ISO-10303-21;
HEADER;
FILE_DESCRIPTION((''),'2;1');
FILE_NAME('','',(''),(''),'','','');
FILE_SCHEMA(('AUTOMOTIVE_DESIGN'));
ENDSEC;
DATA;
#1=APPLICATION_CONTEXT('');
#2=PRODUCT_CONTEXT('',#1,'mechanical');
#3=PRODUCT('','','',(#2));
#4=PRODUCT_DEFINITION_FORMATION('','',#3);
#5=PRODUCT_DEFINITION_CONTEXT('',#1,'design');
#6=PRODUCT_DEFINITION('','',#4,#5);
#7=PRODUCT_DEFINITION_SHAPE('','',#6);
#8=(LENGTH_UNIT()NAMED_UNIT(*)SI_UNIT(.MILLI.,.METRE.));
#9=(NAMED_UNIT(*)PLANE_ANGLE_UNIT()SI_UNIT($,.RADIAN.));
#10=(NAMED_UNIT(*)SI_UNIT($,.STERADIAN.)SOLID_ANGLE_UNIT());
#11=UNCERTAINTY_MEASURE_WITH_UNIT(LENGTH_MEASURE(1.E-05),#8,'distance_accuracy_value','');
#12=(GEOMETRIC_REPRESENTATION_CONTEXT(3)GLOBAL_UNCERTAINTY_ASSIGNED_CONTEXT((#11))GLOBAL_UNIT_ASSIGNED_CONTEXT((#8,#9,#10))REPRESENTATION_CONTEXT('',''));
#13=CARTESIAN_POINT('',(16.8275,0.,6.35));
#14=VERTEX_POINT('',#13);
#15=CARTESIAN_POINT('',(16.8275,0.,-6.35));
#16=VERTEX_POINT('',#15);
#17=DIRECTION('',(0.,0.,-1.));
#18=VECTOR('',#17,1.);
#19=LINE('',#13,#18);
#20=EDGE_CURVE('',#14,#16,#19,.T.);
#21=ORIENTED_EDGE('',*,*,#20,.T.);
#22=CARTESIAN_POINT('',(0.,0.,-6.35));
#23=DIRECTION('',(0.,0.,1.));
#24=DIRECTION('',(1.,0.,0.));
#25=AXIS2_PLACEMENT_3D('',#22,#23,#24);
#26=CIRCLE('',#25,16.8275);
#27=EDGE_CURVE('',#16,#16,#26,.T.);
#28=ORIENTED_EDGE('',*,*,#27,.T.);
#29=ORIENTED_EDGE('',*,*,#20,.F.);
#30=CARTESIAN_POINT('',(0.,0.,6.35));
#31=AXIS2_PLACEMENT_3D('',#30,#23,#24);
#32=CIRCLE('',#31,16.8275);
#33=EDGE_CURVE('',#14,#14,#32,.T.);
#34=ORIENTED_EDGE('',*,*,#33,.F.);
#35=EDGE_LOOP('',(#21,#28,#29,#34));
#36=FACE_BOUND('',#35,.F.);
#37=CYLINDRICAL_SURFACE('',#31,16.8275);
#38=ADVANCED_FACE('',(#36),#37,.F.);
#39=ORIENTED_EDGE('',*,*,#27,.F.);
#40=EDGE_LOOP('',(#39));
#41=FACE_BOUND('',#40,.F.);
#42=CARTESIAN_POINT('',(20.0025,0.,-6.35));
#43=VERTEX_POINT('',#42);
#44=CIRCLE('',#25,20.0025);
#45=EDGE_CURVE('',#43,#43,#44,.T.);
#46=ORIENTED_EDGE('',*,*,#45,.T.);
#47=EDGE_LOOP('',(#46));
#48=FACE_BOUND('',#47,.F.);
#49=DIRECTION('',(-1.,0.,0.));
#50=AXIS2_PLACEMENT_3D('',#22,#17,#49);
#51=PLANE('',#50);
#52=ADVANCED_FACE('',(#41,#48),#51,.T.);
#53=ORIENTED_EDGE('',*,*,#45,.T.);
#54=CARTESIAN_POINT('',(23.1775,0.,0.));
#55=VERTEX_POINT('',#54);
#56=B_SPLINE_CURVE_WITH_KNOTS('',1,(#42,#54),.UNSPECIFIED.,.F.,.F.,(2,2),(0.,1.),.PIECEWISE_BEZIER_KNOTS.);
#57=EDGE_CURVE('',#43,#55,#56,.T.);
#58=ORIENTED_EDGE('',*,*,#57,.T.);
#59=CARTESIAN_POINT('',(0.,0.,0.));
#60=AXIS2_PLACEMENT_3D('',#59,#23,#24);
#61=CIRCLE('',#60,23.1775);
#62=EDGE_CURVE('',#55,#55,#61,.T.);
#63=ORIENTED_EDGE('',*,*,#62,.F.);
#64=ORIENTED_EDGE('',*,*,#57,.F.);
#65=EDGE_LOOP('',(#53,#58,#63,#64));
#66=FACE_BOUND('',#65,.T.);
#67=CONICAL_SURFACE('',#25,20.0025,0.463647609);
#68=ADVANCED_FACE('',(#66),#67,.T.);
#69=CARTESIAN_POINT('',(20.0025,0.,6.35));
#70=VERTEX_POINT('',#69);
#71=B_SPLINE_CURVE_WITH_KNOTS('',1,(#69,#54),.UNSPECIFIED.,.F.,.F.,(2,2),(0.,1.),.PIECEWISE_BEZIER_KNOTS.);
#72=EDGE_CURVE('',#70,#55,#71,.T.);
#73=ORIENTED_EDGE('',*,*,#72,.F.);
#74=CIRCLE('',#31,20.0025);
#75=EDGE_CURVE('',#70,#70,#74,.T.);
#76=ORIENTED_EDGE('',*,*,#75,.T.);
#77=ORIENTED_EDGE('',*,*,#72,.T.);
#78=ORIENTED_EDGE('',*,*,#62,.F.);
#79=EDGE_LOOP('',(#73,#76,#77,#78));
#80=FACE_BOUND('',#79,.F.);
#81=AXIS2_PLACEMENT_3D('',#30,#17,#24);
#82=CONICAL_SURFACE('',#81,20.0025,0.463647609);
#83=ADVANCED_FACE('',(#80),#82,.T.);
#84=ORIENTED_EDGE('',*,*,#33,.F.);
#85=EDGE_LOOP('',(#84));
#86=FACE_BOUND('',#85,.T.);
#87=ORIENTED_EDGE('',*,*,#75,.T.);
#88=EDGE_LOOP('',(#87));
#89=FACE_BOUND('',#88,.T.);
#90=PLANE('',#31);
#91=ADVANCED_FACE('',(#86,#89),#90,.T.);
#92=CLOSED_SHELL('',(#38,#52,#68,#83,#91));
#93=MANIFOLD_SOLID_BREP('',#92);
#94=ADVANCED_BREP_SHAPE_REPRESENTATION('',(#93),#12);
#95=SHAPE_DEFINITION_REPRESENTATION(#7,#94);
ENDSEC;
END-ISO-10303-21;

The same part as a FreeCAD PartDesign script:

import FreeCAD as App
import Part
import Sketcher

V = App.Vector
Q = App.Units.Quantity

doc = App.newDocument("Part")
params = doc.addObject("Spreadsheet::Sheet", "Params")
for row, (alias, value) in enumerate([
    ("sketch1_diameter", "1.575 in"),
    ("sketch1_diameter2", "1.325 in"),
    ("pad1_length", "0.25 in"),
    ("sketch2_diameter", "1.575 in"),
    ("sketch3_diameter", "1.825 in"),
    ("sketch4_diameter", "1.325 in"),
], start=1):
    params.set(f"A{row}", alias)
    params.set(f"B{row}", "=" + value)
    params.setAlias(f"B{row}", alias)

body = doc.addObject("PartDesign::Body", "Body")

# Sketch on XY plane
sketch1 = body.newObject("Sketcher::SketchObject", "Sketch")
sketch1.AttachmentSupport = (doc.getObject("XY_Plane"), [""])
sketch1.MapMode = "FlatFace"
sketch1.addGeometry([
    Part.Circle(V(0, 0, 0), V(0, 0, 1), 20.0025),
    Part.Circle(V(0, 0, 0), V(0, 0, 1), 16.8275),
], False)
sketch1.addConstraint([
    Sketcher.Constraint("Coincident", 0, 3, -1, 1),
    Sketcher.Constraint("Coincident", 1, 3, -1, 1),
    Sketcher.Constraint("Diameter", 0, Q("1.575 in")),
    Sketcher.Constraint("Diameter", 1, Q("1.325 in")),
])
sketch1.setExpression("Constraints[2]", "Params.sketch1_diameter")
sketch1.setExpression("Constraints[3]", "Params.sketch1_diameter2")
pad1 = body.newObject("PartDesign::Pad", "Pad")
pad1.Profile = sketch1
pad1.setExpression("Length", "Params.pad1_length")

# Sketch on XY plane
sketch2 = body.newObject("Sketcher::SketchObject", "Sketch001")
sketch2.AttachmentSupport = (doc.getObject("XY_Plane"), [""])
sketch2.MapMode = "FlatFace"
sketch2.AttachmentOffset = App.Placement(V(0, 0, 0.25 * 25.4), App.Rotation())
sketch2.addGeometry(Part.Circle(V(0, 0, 0), V(0, 0, 1), 20.0025), False)
sketch2.addConstraint([
    Sketcher.Constraint("Coincident", 0, 3, -1, 1),
    Sketcher.Constraint("Diameter", 0, Q("1.575 in")),
])
sketch2.setExpression("Constraints[1]", "Params.sketch2_diameter")

# Sketch on XY plane
sketch3 = body.newObject("Sketcher::SketchObject", "Sketch002")
sketch3.AttachmentSupport = (doc.getObject("XY_Plane"), [""])
sketch3.MapMode = "FlatFace"
sketch3.addGeometry(Part.Circle(V(0, 0, 0), V(0, 0, 1), 23.1775), False)
sketch3.addConstraint([
    Sketcher.Constraint("Coincident", 0, 3, -1, 1),
    Sketcher.Constraint("Diameter", 0, Q("1.825 in")),
])
sketch3.setExpression("Constraints[1]", "Params.sketch3_diameter")

additiveloft = body.newObject("PartDesign::AdditiveLoft", "AdditiveLoft")
additiveloft.Profile = sketch2
additiveloft.Sections = [sketch3]
body2 = doc.addObject("PartDesign::Body", "Body001")
doc.recompute()

body2.BaseFeature = body
doc.recompute()

mirroring = doc.addObject("Part::Mirroring", "Mirroring")
mirroring.Source = body
mirroring.Base = V(0, 0, 0)
mirroring.Normal = V(0, 0, 1)
body3 = doc.addObject("PartDesign::Body", "Body002")
body3.BaseFeature = mirroring
boolean = body2.newObject("PartDesign::Boolean", "Boolean")
boolean.Type = "Fuse"
boolean.addObjects([body3])
doc.recompute()

# Sketch on XY plane
sketch4 = body2.newObject("Sketcher::SketchObject", "Sketch003")
sketch4.AttachmentSupport = (doc.getObject("XY_Plane001"), [""])
sketch4.MapMode = "FlatFace"
sketch4.AttachmentOffset = App.Placement(V(0, 0, 0.25 * 25.4), App.Rotation())
sketch4.addGeometry(Part.Circle(V(0, 0, 0), V(0, 0, 1), 16.8275), False)
sketch4.addConstraint([
    Sketcher.Constraint("Coincident", 0, 3, -1, 1),
    Sketcher.Constraint("Diameter", 0, Q("1.325 in")),
])
sketch4.setExpression("Constraints[1]", "Params.sketch4_diameter")
pocket1 = body2.newObject("PartDesign::Pocket", "Pocket")
pocket1.Profile = sketch4
pocket1.Type = "ThroughAll"
mirroring.Visibility = False

doc.recompute()
